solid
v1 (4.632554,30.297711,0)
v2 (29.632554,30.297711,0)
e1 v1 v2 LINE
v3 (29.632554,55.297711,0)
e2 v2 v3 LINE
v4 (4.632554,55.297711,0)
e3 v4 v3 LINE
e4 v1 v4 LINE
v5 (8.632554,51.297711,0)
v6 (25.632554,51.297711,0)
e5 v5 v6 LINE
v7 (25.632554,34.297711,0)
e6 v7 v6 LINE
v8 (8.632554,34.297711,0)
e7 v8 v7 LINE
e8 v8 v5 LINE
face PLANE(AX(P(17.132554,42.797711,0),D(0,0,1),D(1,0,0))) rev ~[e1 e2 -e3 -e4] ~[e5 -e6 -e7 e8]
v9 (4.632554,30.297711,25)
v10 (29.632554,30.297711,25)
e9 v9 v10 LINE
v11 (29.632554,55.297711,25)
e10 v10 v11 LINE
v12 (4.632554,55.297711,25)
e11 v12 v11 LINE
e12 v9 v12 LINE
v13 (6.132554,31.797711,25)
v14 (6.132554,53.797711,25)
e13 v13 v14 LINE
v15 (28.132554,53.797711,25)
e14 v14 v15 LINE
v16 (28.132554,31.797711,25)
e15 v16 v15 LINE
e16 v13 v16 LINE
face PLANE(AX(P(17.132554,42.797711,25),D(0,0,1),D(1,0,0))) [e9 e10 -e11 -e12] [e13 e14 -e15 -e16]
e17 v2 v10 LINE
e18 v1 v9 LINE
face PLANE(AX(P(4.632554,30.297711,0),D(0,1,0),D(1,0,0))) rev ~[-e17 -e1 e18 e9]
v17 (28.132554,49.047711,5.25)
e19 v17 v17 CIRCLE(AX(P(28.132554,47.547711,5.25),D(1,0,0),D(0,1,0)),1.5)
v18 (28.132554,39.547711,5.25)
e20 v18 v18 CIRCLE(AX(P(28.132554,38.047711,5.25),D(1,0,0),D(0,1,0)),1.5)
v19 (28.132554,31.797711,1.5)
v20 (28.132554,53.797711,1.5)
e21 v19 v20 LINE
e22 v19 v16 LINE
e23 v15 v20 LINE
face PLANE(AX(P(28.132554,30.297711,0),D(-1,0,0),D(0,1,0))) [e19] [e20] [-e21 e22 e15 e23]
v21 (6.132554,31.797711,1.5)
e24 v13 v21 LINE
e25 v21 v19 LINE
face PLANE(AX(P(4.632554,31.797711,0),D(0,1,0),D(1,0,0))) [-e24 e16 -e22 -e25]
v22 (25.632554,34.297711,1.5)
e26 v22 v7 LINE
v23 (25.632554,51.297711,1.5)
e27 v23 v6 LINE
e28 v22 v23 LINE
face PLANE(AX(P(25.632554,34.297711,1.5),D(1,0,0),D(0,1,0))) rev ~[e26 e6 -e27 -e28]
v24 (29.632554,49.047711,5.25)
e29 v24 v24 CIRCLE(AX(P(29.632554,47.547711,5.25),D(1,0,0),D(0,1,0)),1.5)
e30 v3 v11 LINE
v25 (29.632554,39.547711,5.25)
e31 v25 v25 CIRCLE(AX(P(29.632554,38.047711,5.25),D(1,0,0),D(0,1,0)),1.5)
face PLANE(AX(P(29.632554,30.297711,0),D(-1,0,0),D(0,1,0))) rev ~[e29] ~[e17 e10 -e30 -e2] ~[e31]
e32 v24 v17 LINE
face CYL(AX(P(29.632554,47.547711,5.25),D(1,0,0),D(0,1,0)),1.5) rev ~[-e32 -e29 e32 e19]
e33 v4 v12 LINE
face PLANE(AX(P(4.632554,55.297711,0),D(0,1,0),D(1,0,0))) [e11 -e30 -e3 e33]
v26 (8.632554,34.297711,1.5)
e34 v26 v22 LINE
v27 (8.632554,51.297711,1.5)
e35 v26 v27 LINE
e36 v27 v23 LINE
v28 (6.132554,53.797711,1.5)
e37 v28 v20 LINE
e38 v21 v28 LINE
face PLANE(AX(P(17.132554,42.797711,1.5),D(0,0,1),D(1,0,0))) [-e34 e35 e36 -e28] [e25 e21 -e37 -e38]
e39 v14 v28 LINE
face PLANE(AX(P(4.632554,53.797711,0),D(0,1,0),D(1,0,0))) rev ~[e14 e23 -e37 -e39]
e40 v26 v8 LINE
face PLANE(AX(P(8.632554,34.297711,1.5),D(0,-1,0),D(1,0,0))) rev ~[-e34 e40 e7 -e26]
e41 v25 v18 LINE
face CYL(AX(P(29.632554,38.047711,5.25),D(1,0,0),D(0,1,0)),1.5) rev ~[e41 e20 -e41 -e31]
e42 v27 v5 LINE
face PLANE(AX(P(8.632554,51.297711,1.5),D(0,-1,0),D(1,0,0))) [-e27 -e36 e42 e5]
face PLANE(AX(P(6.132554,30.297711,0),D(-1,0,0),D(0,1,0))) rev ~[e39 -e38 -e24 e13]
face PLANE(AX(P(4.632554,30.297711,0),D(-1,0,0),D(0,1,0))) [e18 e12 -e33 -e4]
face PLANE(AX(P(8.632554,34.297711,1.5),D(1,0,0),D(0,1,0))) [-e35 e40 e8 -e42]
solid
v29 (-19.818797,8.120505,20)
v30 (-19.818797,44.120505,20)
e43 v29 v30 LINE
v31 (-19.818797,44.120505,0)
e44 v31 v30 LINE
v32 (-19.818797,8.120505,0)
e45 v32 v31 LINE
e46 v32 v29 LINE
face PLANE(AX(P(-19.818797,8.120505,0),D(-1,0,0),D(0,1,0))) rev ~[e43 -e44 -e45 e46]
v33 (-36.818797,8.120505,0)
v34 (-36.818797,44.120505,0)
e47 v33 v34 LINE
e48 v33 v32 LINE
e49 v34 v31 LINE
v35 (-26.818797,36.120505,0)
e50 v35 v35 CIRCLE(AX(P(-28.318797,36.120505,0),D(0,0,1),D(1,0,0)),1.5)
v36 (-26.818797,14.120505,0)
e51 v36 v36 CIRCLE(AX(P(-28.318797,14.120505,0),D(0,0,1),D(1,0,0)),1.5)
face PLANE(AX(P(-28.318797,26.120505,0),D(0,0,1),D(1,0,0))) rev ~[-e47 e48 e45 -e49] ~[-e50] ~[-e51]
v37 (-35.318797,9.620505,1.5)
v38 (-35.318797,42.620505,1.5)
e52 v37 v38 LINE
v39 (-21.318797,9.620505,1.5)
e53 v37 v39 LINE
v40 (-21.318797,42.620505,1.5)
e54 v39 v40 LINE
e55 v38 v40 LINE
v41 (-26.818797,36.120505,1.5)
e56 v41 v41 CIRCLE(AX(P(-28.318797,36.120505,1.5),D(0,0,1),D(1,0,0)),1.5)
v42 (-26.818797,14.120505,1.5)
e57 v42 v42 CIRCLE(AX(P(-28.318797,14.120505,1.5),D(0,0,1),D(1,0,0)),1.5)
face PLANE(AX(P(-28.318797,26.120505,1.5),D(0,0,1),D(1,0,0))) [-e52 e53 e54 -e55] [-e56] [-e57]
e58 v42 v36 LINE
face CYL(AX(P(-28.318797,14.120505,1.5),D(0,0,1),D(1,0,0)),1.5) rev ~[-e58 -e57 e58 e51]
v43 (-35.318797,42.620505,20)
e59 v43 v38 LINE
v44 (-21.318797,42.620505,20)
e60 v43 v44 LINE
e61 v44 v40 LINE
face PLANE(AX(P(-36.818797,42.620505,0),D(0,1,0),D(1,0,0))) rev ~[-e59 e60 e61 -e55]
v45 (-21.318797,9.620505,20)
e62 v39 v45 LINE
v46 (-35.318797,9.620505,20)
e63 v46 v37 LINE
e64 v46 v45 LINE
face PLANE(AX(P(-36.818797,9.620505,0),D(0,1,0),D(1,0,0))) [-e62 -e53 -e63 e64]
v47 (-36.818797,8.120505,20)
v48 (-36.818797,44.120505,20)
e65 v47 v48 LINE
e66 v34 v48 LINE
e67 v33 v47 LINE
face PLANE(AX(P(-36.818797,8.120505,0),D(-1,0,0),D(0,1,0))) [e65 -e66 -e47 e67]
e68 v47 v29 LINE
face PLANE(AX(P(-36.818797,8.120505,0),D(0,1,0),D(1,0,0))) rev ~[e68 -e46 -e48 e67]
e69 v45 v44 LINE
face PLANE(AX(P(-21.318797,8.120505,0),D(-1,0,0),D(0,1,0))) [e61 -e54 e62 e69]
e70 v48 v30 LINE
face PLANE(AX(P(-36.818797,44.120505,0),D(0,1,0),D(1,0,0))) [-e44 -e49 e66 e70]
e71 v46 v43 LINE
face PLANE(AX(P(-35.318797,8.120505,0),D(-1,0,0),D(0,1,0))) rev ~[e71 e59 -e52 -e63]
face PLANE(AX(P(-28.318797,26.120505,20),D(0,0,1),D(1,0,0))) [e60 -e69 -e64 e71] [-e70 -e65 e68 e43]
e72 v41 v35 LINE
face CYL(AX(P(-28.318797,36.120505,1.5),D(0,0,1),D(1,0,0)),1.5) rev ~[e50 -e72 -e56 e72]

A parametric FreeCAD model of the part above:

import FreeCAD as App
import Part
import Sketcher
Q = App.Units.Quantity


def faces_at(feature, points):
    """Names of the faces that lie closest to the given points."""
    faces = feature.Shape.Faces
    near = lambda p: min(range(len(faces)), key=lambda i: faces[i].distToShape(Part.Vertex(*p))[0])
    return sorted({f"Face{near(p) + 1}" for p in points})

doc = App.newDocument("Part")
body = doc.addObject("PartDesign::Body", "Body")

# Sketch on XY plane
sketch1 = body.newObject("Sketcher::SketchObject", "Sketch")
sketch1.AttachmentSupport = (doc.getObject("XY_Plane"), [""])
sketch1.MapMode = "FlatFace"
sketch1.addGeometry([
    Part.LineSegment(App.Vector(-37, 44, 0), App.Vector(-37, 8, 0)),
    Part.LineSegment(App.Vector(-37, 8, 0), App.Vector(-20, 8, 0)),
    Part.LineSegment(App.Vector(-20, 8, 0), App.Vector(-20, 44, 0)),
    Part.LineSegment(App.Vector(-20, 44, 0), App.Vector(-37, 44, 0)),
], False)
sketch1.addConstraint([
    Sketcher.Constraint("Coincident", 0, 2, 1, 1),
    Sketcher.Constraint("Coincident", 1, 2, 2, 1),
    Sketcher.Constraint("Coincident", 2, 2, 3, 1),
    Sketcher.Constraint("Coincident", 3, 2, 0, 1),
    Sketcher.Constraint("Vertical", 0),
    Sketcher.Constraint("Horizontal", 1),
    Sketcher.Constraint("Vertical", 2),
    Sketcher.Constraint("Horizontal", 3),
    Sketcher.Constraint("DistanceX", 1, 1, 1, 2, Q("17 mm")),
    Sketcher.Constraint("DistanceY", 0, 2, 0, 1, Q("36 mm")),
    Sketcher.Constraint("DistanceX", 0, 2, -1, 1, Q("36.818797 mm")),
    Sketcher.Constraint("DistanceY", -1, 1, 0, 2, Q("8.120505 mm")),
])
pad1 = body.newObject("PartDesign::Pad", "Pad")
pad1.Profile = sketch1
pad1.Length = 20
doc.recompute()

thickness = body.newObject("PartDesign::Thickness", "Thickness")
thickness.Base = (pad1, faces_at(pad1, [(-28.319, 26.121, 20)]))
thickness.Value = 1.5
thickness.Reversed = True
thickness.Join = "Arc"

# Sketch on XY plane
sketch2 = body.newObject("Sketcher::SketchObject", "Sketch001")
sketch2.AttachmentSupport = (doc.getObject("XY_Plane"), [""])
sketch2.MapMode = "FlatFace"
sketch2.AttachmentOffset = App.Placement(App.Vector(0, 0, 1.5), App.Rotation())
sketch2.addGeometry([
    Part.Circle(App.Vector(-28.3, 36.1, 0), App.Vector(0, 0, 1), 1.5),
    Part.Circle(App.Vector(-28.3, 14.1, 0), App.Vector(0, 0, 1), 1.5),
], False)
sketch2.addConstraint([
    Sketcher.Constraint("Equal", 0, 1),
    Sketcher.Constraint("Vertical", 0, 3, 1, 3),
    Sketcher.Constraint("Diameter", 0, Q("3 mm")),
    Sketcher.Constraint("DistanceY", 1, 3, 0, 3, Q("22 mm")),
    Sketcher.Constraint("DistanceX", 0, 3, -1, 1, Q("28.318797 mm")),
    Sketcher.Constraint("DistanceY", -1, 1, 0, 3, Q("36.120505 mm")),
])
pocket1 = body.newObject("PartDesign::Pocket", "Pocket")
pocket1.Profile = sketch2
pocket1.Length = 63.5
body2 = doc.addObject("PartDesign::Body", "Body001")

# Sketch on XY plane
sketch3 = body2.newObject("Sketcher::SketchObject", "Sketch002")
sketch3.AttachmentSupport = (doc.getObject("XY_Plane001"), [""])
sketch3.MapMode = "FlatFace"
sketch3.addGeometry([
    Part.LineSegment(App.Vector(5, 55, 0), App.Vector(5, 30, 0)),
    Part.LineSegment(App.Vector(5, 30, 0), App.Vector(30, 30, 0)),
    Part.LineSegment(App.Vector(30, 30, 0), App.Vector(30, 55, 0)),
    Part.LineSegment(App.Vector(30, 55, 0), App.Vector(5, 55, 0)),
], False)
sketch3.addConstraint([
    Sketcher.Constraint("Coincident", 0, 2, 1, 1),
    Sketcher.Constraint("Coincident", 1, 2, 2, 1),
    Sketcher.Constraint("Coincident", 2, 2, 3, 1),
    Sketcher.Constraint("Coincident", 3, 2, 0, 1),
    Sketcher.Constraint("Vertical", 0),
    Sketcher.Constraint("Horizontal", 1),
    Sketcher.Constraint("Vertical", 2),
    Sketcher.Constraint("Horizontal", 3),
    Sketcher.Constraint("Equal", 3, 0),
    Sketcher.Constraint("DistanceX", 1, 1, 1, 2, Q("25 mm")),
    Sketcher.Constraint("DistanceY", -1, 1, 0, 2, Q("30.297711 mm")),
    Sketcher.Constraint("DistanceX", -1, 1, 0, 2, Q("4.632554 mm")),
])
pad2 = body2.newObject("PartDesign::Pad", "Pad001")
pad2.Profile = sketch3
pad2.Length = 25
doc.recompute()

thickness2 = body2.newObject("PartDesign::Thickness", "Thickness001")
thickness2.Base = (pad2, faces_at(pad2, [(17.133, 42.798, 25)]))
thickness2.Value = 1.5
thickness2.Reversed = True
thickness2.Join = "Arc"

# Sketch on XY plane
sketch4 = body2.newObject("Sketcher::SketchObject", "Sketch003")
sketch4.AttachmentSupport = (doc.getObject("XY_Plane001"), [""])
sketch4.MapMode = "FlatFace"
sketch4.AttachmentOffset = App.Placement(App.Vector(0, 0, 1.5), App.Rotation())
sketch4.addGeometry([
    Part.LineSegment(App.Vector(9, 51, 0), App.Vector(9, 34, 0)),
    Part.LineSegment(App.Vector(9, 34, 0), App.Vector(26, 34, 0)),
    Part.LineSegment(App.Vector(26, 34, 0), App.Vector(26, 51, 0)),
    Part.LineSegment(App.Vector(26, 51, 0), App.Vector(9, 51, 0)),
], False)
sketch4.addConstraint([
    Sketcher.Constraint("Coincident", 0, 2, 1, 1),
    Sketcher.Constraint("Coincident", 1, 2, 2, 1),
    Sketcher.Constraint("Coincident", 2, 2, 3, 1),
    Sketcher.Constraint("Coincident", 3, 2, 0, 1),
    Sketcher.Constraint("Vertical", 0),
    Sketcher.Constraint("Horizontal", 1),
    Sketcher.Constraint("Vertical", 2),
    Sketcher.Constraint("Horizontal", 3),
    Sketcher.Constraint("Equal", 3, 0),
    Sketcher.Constraint("DistanceX", 1, 1, 1, 2, Q("17 mm")),
    Sketcher.Constraint("DistanceY", -1, 1, 0, 2, Q("34.297711 mm")),
    Sketcher.Constraint("DistanceX", -1, 1, 0, 2, Q("8.632554 mm")),
])
pocket2 = body2.newObject("PartDesign::Pocket", "Pocket001")
pocket2.Profile = sketch4
pocket2.Length = 25

# Sketch on YZ plane
sketch5 = body2.newObject("Sketcher::SketchObject", "Sketch004")
sketch5.AttachmentSupport = (doc.getObject("YZ_Plane001"), [""])
sketch5.MapMode = "FlatFace"
sketch5.AttachmentOffset = App.Placement(App.Vector(0, 0, 29.632554), App.Rotation())
sketch5.addGeometry([
    Part.Circle(App.Vector(38, 5.2, 0), App.Vector(0, 0, 1), 1.5),
    Part.Circle(App.Vector(47.5, 5.2, 0), App.Vector(0, 0, 1), 1.5),
], False)
sketch5.addConstraint([
    Sketcher.Constraint("Equal", 0, 1),
    Sketcher.Constraint("Horizontal", 0, 3, 1, 3),
    Sketcher.Constraint("Diameter", 0, Q("3 mm")),
    Sketcher.Constraint("DistanceX", 0, 3, 1, 3, Q("9.5 mm")),
    Sketcher.Constraint("DistanceY", -1, 1, 0, 3, Q("5.25 mm")),
    Sketcher.Constraint("DistanceX", -1, 1, 0, 3, Q("38.047711 mm")),
])
pocket3 = body2.newObject("PartDesign::Pocket", "Pocket002")
pocket3.Profile = sketch5
pocket3.Length = 10

doc.recompute()
